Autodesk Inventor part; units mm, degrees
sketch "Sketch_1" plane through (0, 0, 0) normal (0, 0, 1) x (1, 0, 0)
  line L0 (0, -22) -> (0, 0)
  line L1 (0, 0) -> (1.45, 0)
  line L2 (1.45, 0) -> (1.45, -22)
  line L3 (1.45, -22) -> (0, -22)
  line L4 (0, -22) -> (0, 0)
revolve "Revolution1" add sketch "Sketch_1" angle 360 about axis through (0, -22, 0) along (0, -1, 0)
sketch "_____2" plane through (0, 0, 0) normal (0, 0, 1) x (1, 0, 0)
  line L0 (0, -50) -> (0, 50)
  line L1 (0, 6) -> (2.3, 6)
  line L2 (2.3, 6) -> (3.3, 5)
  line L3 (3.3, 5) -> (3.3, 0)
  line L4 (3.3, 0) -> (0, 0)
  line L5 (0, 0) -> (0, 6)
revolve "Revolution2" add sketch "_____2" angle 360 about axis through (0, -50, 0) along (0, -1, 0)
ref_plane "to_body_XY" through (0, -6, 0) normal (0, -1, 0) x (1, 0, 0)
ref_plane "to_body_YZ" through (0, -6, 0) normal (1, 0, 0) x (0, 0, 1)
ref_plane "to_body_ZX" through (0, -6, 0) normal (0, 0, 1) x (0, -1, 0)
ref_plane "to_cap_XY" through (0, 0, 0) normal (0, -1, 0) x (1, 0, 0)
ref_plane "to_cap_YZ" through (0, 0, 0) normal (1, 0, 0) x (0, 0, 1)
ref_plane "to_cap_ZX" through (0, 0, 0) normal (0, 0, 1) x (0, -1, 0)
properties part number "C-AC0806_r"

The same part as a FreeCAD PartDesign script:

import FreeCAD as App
import Part
import Sketcher

V = App.Vector
Q = App.Units.Quantity


def add_polygon(sketch, points):
    """Adds a closed chain of lines whose ends are joined by coincident constraints."""
    first, n = sketch.GeometryCount, len(points)
    for a, b in zip(points, points[1:] + points[:1]):
        sketch.addGeometry(Part.LineSegment(App.Vector(*a, 0), App.Vector(*b, 0)), False)
    for i in range(n):
        sketch.addConstraint(Sketcher.Constraint("Coincident", first + i, 2, first + (i + 1) % n, 1))

doc = App.newDocument("Part")
body = doc.addObject("PartDesign::Body", "Body")

sketch1 = body.newObject("Sketcher::SketchObject", "Sketch")
sketch1.AttachmentSupport = (doc.getObject("XY_Plane"), [""])
sketch1.MapMode = "FlatFace"
add_polygon(sketch1, [(0, 0), (0, -22), (1.4, -22), (1.4, 0)])
sketch1.addConstraint([
    Sketcher.Constraint("Vertical", 0),
    Sketcher.Constraint("Horizontal", 1),
    Sketcher.Constraint("Vertical", 2),
    Sketcher.Constraint("Horizontal", 3),
    Sketcher.Constraint("Coincident", 3, 2, -1, 1),
    Sketcher.Constraint("DistanceY", 0, 2, 0, 1, 22.0),
    Sketcher.Constraint("DistanceX", 1, 1, 1, 2, 1.45),
])
revolution = body.newObject("PartDesign::Revolution", "Revolution")
revolution.Profile = sketch1
revolution.ReferenceAxis = (sketch1, ["V_Axis"])
revolution.Angle = 360

sketch2 = body.newObject("Sketcher::SketchObject", "Sketch001")
sketch2.AttachmentSupport = (doc.getObject("XY_Plane"), [""])
sketch2.MapMode = "FlatFace"
add_polygon(sketch2, [(0, 6), (0, 0), (3.3, 0), (3.3, 5), (2.3, 6)])
sketch2.addConstraint([
    Sketcher.Constraint("Vertical", 0),
    Sketcher.Constraint("Horizontal", 1),
    Sketcher.Constraint("Vertical", 2),
    Sketcher.Constraint("Horizontal", 4),
    Sketcher.Constraint("Coincident", 0, 2, -1, 1),
    Sketcher.Constraint("DistanceY", 0, 2, 0, 1, 6.0),
    Sketcher.Constraint("DistanceY", 2, 1, 2, 2, 5.0),
    Sketcher.Constraint("Angle", 3, Q("135 deg")),
    Sketcher.Constraint("DistanceX", 1, 1, 1, 2, 3.3),
])
revolution2 = body.newObject("PartDesign::Revolution", "Revolution001")
revolution2.Profile = sketch2
revolution2.ReferenceAxis = (sketch2, ["V_Axis"])
revolution2.Angle = 360

doc.recompute()
